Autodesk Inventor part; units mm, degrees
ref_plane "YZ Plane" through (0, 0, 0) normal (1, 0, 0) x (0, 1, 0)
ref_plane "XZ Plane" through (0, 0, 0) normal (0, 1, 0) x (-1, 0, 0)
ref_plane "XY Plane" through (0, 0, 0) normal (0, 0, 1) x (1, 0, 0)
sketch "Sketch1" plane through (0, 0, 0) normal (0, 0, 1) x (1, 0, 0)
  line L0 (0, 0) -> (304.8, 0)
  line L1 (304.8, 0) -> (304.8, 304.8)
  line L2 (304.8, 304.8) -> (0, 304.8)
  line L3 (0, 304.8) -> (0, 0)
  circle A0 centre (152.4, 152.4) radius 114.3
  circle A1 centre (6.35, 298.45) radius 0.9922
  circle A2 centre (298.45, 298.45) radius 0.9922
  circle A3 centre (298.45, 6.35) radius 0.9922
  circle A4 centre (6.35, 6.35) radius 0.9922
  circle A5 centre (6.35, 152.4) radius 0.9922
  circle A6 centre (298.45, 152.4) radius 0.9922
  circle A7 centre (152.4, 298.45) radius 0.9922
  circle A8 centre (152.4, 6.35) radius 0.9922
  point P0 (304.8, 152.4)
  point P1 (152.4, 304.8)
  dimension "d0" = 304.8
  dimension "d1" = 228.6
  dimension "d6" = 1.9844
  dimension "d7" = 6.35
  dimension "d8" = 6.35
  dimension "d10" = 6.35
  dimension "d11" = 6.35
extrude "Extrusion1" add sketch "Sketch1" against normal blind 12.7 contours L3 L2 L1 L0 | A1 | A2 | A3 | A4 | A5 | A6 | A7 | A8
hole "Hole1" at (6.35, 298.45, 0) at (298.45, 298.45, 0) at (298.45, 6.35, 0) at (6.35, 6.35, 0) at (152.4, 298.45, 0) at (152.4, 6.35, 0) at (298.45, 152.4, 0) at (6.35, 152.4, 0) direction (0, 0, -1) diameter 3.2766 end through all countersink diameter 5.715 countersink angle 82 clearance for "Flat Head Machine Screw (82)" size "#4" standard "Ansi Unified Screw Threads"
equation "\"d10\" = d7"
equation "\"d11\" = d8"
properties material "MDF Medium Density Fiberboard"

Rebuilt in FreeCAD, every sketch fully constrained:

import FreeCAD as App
import Part
import Sketcher
from FreeCAD import Vector
Q = App.Units.Quantity

doc = App.newDocument("Part")
params = doc.addObject("Spreadsheet::Sheet", "Params")
for row, (alias, value) in enumerate([
    ("sketch1_diameter", "9 in"),
    ("sketch1_width", "12 in"),
    ("pad1_length", "0.5 in"),
    ("sketch2_diameter", "0.129 in"),
    ("hole_diameter", "0.129 in"),
    ("hole_csink_diameter", "0.225 in"),
], start=1):
    params.set(f"A{row}", alias)
    params.set(f"B{row}", "=" + value)
    params.setAlias(f"B{row}", alias)

body = doc.addObject("PartDesign::Body", "Body")

# Sketch on XY plane
sketch1 = body.newObject("Sketcher::SketchObject", "Sketch")
sketch1.AttachmentSupport = (doc.getObject("XY_Plane"), [""])
sketch1.MapMode = "FlatFace"
sketch1.addGeometry(Part.LineSegment(Vector(0, 305, 0), Vector(0, 0, 0)), False)
sketch1.addGeometry(Part.LineSegment(Vector(0, 0, 0), Vector(305, 0, 0)), False)
sketch1.addGeometry(Part.LineSegment(Vector(305, 0, 0), Vector(305, 305, 0)), False)
sketch1.addGeometry(Part.LineSegment(Vector(305, 305, 0), Vector(0, 305, 0)), False)
sketch1.addGeometry(Part.Circle(Vector(152, 152, 0), Vector(0, 0, 1), 114), False)
sketch1.addConstraint(Sketcher.Constraint("Coincident", 0, 2, 1, 1))
sketch1.addConstraint(Sketcher.Constraint("Coincident", 1, 2, 2, 1))
sketch1.addConstraint(Sketcher.Constraint("Coincident", 2, 2, 3, 1))
sketch1.addConstraint(Sketcher.Constraint("Coincident", 3, 2, 0, 1))
sketch1.addConstraint(Sketcher.Constraint("Vertical", 0))
sketch1.addConstraint(Sketcher.Constraint("Horizontal", 1))
sketch1.addConstraint(Sketcher.Constraint("Vertical", 2))
sketch1.addConstraint(Sketcher.Constraint("Horizontal", 3))
sketch1.addConstraint(Sketcher.Constraint("Coincident", 0, 2, -1, 1))
sketch1.addConstraint(Sketcher.Constraint("Equal", 3, 0))
sketch1.addConstraint(Sketcher.Constraint("Diameter", 4, Q("9 in")))
sketch1.addConstraint(Sketcher.Constraint("DistanceX", 1, 1, 1, 2, Q("12 in")))
sketch1.addConstraint(Sketcher.Constraint("DistanceX", -1, 1, 4, 3, Q("6 in")))
sketch1.addConstraint(Sketcher.Constraint("DistanceY", -1, 1, 4, 3, Q("6 in")))
sketch1.setExpression("Constraints[10]", "Params.sketch1_diameter")
sketch1.setExpression("Constraints[11]", "Params.sketch1_width")
pad1 = body.newObject("PartDesign::Pad", "Pad")
pad1.Profile = sketch1
pad1.setExpression("Length", "Params.pad1_length")
pad1.Reversed = True

# Sketch on XY plane
sketch2 = body.newObject("Sketcher::SketchObject", "Sketch001")
sketch2.AttachmentSupport = (doc.getObject("XY_Plane"), [""])
sketch2.MapMode = "FlatFace"
sketch2.addGeometry(Part.Circle(Vector(6.3, 298.4, 0), Vector(0, 0, 1), 1.6), False)
sketch2.addGeometry(Part.Circle(Vector(298.4, 298.4, 0), Vector(0, 0, 1), 1.6), False)
sketch2.addGeometry(Part.Circle(Vector(298.4, 6.3, 0), Vector(0, 0, 1), 1.6), False)
sketch2.addGeometry(Part.Circle(Vector(6.3, 6.3, 0), Vector(0, 0, 1), 1.6), False)
sketch2.addGeometry(Part.Circle(Vector(152.4, 298.4, 0), Vector(0, 0, 1), 1.6), False)
sketch2.addGeometry(Part.Circle(Vector(152.4, 6.3, 0), Vector(0, 0, 1), 1.6), False)
sketch2.addGeometry(Part.Circle(Vector(298.4, 152.4, 0), Vector(0, 0, 1), 1.6), False)
sketch2.addGeometry(Part.Circle(Vector(6.3, 152.4, 0), Vector(0, 0, 1), 1.6), False)
sketch2.addConstraint(Sketcher.Constraint("Equal", 0, 1))
sketch2.addConstraint(Sketcher.Constraint("Equal", 1, 2))
sketch2.addConstraint(Sketcher.Constraint("Equal", 2, 3))
sketch2.addConstraint(Sketcher.Constraint("Equal", 3, 4))
sketch2.addConstraint(Sketcher.Constraint("Equal", 4, 5))
sketch2.addConstraint(Sketcher.Constraint("Equal", 5, 6))
sketch2.addConstraint(Sketcher.Constraint("Equal", 6, 7))
sketch2.addConstraint(Sketcher.Constraint("Horizontal", 0, 3, 1, 3))
sketch2.addConstraint(Sketcher.Constraint("Horizontal", 2, 3, 3, 3))
sketch2.addConstraint(Sketcher.Constraint("Horizontal", 1, 3, 4, 3))
sketch2.addConstraint(Sketcher.Constraint("Horizontal", 3, 3, 5, 3))
sketch2.addConstraint(Sketcher.Constraint("Horizontal", 6, 3, 7, 3))
sketch2.addConstraint(Sketcher.Constraint("Vertical", 1, 3, 2, 3))
sketch2.addConstraint(Sketcher.Constraint("Vertical", 0, 3, 3, 3))
sketch2.addConstraint(Sketcher.Constraint("Vertical", 4, 3, 5, 3))
sketch2.addConstraint(Sketcher.Constraint("Vertical", 2, 3, 6, 3))
sketch2.addConstraint(Sketcher.Constraint("Vertical", 3, 3, 7, 3))
sketch2.addConstraint(Sketcher.Constraint("Diameter", 0, Q("0.129 in")))
sketch2.addConstraint(Sketcher.Constraint("DistanceX", -1, 1, 4, 3, Q("6 in")))
sketch2.addConstraint(Sketcher.Constraint("DistanceY", -1, 1, 6, 3, Q("6 in")))
sketch2.addConstraint(Sketcher.Constraint("DistanceX", 0, 3, 1, 3, Q("11.5 in")))
sketch2.addConstraint(Sketcher.Constraint("DistanceY", 2, 3, 1, 3, Q("11.5 in")))
sketch2.addConstraint(Sketcher.Constraint("DistanceX", -1, 1, 0, 3, Q("0.25 in")))
sketch2.addConstraint(Sketcher.Constraint("DistanceY", -1, 1, 0, 3, Q("11.75 in")))
sketch2.setExpression("Constraints[17]", "Params.sketch2_diameter")
doc.recompute()
hole = body.newObject("PartDesign::Hole", "Hole")
hole.Profile = sketch2
hole.ThreadType = "None"
hole.setExpression("Diameter", "Params.hole_diameter")
hole.DepthType = "ThroughAll"
hole.HoleCutType = "Countersink"
hole.setExpression("HoleCutDiameter", "Params.hole_csink_diameter")
hole.HoleCutCountersinkAngle = 82

doc.recompute()
